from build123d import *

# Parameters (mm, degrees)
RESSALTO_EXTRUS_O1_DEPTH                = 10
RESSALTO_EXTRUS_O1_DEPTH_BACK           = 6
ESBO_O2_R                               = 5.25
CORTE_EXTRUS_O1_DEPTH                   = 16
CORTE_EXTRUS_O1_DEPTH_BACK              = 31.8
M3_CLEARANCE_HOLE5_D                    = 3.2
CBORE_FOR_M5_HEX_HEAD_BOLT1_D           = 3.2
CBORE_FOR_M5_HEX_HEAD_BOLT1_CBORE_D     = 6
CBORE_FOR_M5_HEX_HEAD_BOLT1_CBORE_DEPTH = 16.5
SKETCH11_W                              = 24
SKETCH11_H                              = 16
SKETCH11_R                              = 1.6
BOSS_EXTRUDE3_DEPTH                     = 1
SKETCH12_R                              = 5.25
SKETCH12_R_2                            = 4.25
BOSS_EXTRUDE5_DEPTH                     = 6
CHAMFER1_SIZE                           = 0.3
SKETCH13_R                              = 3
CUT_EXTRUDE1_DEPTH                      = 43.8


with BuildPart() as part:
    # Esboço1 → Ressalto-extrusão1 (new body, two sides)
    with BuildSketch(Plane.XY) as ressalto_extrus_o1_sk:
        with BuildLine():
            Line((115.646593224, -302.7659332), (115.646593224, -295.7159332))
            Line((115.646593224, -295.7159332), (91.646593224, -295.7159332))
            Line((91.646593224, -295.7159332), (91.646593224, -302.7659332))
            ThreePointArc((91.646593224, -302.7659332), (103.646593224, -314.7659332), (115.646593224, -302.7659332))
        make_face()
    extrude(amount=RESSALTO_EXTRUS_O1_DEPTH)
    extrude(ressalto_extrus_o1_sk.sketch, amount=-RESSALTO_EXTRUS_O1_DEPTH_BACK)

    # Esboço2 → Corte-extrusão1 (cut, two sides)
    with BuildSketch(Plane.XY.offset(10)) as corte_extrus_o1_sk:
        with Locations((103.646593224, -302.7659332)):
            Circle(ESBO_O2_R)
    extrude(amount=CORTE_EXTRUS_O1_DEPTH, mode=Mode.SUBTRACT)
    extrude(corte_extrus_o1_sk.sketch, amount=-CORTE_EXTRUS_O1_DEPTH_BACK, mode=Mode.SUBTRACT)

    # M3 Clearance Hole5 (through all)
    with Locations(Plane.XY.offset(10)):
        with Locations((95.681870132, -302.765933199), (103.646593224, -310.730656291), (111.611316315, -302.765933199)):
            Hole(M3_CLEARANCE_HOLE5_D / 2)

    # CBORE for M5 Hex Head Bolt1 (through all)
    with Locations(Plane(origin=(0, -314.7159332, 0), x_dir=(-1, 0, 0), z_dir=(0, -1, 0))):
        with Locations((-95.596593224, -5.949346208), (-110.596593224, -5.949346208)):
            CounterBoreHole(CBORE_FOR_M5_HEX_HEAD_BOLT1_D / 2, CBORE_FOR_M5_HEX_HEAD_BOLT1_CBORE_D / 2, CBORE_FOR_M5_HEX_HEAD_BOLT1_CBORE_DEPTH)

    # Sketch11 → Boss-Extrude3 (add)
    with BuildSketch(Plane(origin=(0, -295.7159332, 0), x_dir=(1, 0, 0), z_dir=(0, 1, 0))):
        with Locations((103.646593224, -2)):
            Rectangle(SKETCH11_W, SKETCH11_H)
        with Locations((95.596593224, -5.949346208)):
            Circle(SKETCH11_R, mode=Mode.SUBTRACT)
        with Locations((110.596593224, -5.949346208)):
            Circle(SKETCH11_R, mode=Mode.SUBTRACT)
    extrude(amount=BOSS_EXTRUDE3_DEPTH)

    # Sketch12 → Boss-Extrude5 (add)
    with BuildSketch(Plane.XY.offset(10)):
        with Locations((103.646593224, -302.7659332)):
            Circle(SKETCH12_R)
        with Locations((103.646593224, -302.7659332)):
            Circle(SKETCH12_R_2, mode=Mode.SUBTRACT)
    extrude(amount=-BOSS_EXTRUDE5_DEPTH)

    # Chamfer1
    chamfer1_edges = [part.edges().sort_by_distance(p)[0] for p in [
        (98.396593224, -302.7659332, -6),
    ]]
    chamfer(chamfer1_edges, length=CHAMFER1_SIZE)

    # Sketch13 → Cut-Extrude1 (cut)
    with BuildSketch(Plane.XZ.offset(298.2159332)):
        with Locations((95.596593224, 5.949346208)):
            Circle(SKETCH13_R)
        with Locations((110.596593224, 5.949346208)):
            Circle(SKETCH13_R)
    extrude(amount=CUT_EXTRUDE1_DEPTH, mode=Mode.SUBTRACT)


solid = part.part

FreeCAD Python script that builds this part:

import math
import FreeCAD as App
import Part
import Sketcher

V = App.Vector
Q = App.Units.Quantity


def edges_at(feature, points):
    """Names of the edges that pass closest to the given points."""
    edges = feature.Shape.Edges
    near = lambda p: min(range(len(edges)), key=lambda i: edges[i].distToShape(Part.Vertex(*p))[0])
    return sorted({f"Edge{near(p) + 1}" for p in points})

doc = App.newDocument("Part")
body = doc.addObject("PartDesign::Body", "Body")

# Sketch on XY plane
sketch1 = body.newObject("Sketcher::SketchObject", "Sketch")
sketch1.AttachmentSupport = (doc.getObject("XY_Plane"), [""])
sketch1.MapMode = "FlatFace"
sketch1.addGeometry([
    Part.LineSegment(V(115.646593, -302.765933, 0), V(115.646593, -295.715933, 0)),
    Part.LineSegment(V(115.646593, -295.715933, 0), V(91.646593, -295.715933, 0)),
    Part.LineSegment(V(91.646593, -295.715933, 0), V(91.646593, -302.765933, 0)),
    Part.ArcOfCircle(Part.Circle(V(103.646593, -302.765933, 0), V(0, 0, 1), 12), math.radians(180), math.radians(360)),
], False)
sketch1.addConstraint([
    Sketcher.Constraint("Coincident", 0, 2, 1, 1),
    Sketcher.Constraint("Coincident", 1, 2, 2, 1),
    Sketcher.Constraint("Tangent", 2, 2, 3, 1),
    Sketcher.Constraint("Tangent", 3, 2, 0, 1),
    Sketcher.Constraint("Vertical", 0),
    Sketcher.Constraint("Horizontal", 1),
    Sketcher.Constraint("Vertical", 2),
    Sketcher.Constraint("Radius", 3, Q("12 mm")),
    Sketcher.Constraint("DistanceY", 0, 1, 0, 2, Q("7.05 mm")),
    Sketcher.Constraint("DistanceX", -1, 1, 3, 3, Q("103.646593 mm")),
    Sketcher.Constraint("DistanceY", 3, 3, -1, 1, Q("302.765933 mm")),
])
pad1 = body.newObject("PartDesign::Pad", "Pad")
pad1.Profile = sketch1
pad1.Type = "TwoLengths"
pad1.Length = 10
pad1.Length2 = 6

# Sketch on XY plane
sketch2 = body.newObject("Sketcher::SketchObject", "Sketch001")
sketch2.AttachmentSupport = (doc.getObject("XY_Plane"), [""])
sketch2.MapMode = "FlatFace"
sketch2.AttachmentOffset = App.Placement(V(0, 0, 10), App.Rotation())
sketch2.addGeometry(Part.Circle(V(103.646593, -302.765933, 0), V(0, 0, 1), 5.25), False)
sketch2.addConstraint([
    Sketcher.Constraint("Diameter", 0, Q("10.5 mm")),
    Sketcher.Constraint("DistanceX", -1, 1, 0, 3, Q("103.646593 mm")),
    Sketcher.Constraint("DistanceY", 0, 3, -1, 1, Q("302.765933 mm")),
])
pocket1 = body.newObject("PartDesign::Pocket", "Pocket")
pocket1.Profile = sketch2
pocket1.Type = "ThroughAll"
pocket1.Midplane = True

# Sketch on XY plane
sketch3 = body.newObject("Sketcher::SketchObject", "Sketch002")
sketch3.AttachmentSupport = (doc.getObject("XY_Plane"), [""])
sketch3.MapMode = "FlatFace"
sketch3.AttachmentOffset = App.Placement(V(0, 0, 10), App.Rotation())
sketch3.addGeometry([
    Part.Circle(V(95.68187, -302.765933, 0), V(0, 0, 1), 1.6),
    Part.Circle(V(103.646593, -310.730656, 0), V(0, 0, 1), 1.6),
    Part.Circle(V(111.611316, -302.765933, 0), V(0, 0, 1), 1.6),
], False)
sketch3.addConstraint([
    Sketcher.Constraint("Equal", 0, 1),
    Sketcher.Constraint("Equal", 1, 2),
    Sketcher.Constraint("Horizontal", 0, 3, 2, 3),
    Sketcher.Constraint("Diameter", 0, Q("3.2 mm")),
    Sketcher.Constraint("DistanceX", -1, 1, 0, 3, Q("95.68187 mm")),
    Sketcher.Constraint("DistanceY", 0, 3, -1, 1, Q("302.765933 mm")),
    Sketcher.Constraint("DistanceX", -1, 1, 1, 3, Q("103.646593 mm")),
    Sketcher.Constraint("DistanceY", 1, 3, -1, 1, Q("310.730656 mm")),
    Sketcher.Constraint("DistanceX", -1, 1, 2, 3, Q("111.611316 mm")),
])
doc.recompute()
hole = body.newObject("PartDesign::Hole", "Hole")
hole.Profile = sketch3
hole.ThreadType = "None"
hole.Diameter = 3.2
hole.DepthType = "ThroughAll"

# Sketch on XZ plane
sketch4 = body.newObject("Sketcher::SketchObject", "Sketch003")
sketch4.AttachmentSupport = (doc.getObject("XZ_Plane"), [""])
sketch4.MapMode = "FlatFace"
sketch4.AttachmentOffset = App.Placement(V(0, 0, 314.715933), App.Rotation())
sketch4.addGeometry([
    Part.Circle(V(95.596593, 5.949346, 0), V(0, 0, 1), 1.6),
    Part.Circle(V(110.596593, 5.949346, 0), V(0, 0, 1), 1.6),
], False)
sketch4.addConstraint([
    Sketcher.Constraint("Equal", 0, 1),
    Sketcher.Constraint("Horizontal", 0, 3, 1, 3),
    Sketcher.Constraint("Diameter", 0, Q("3.2 mm")),
    Sketcher.Constraint("DistanceX", 0, 3, 1, 3, Q("15 mm")),
    Sketcher.Constraint("DistanceX", -1, 1, 0, 3, Q("95.596593 mm")),
    Sketcher.Constraint("DistanceY", -1, 1, 0, 3, Q("5.949346 mm")),
])
doc.recompute()
hole2 = body.newObject("PartDesign::Hole", "Hole001")
hole2.Profile = sketch4
hole2.ThreadType = "None"
hole2.Diameter = 3.2
hole2.DepthType = "ThroughAll"
hole2.HoleCutType = "Counterbore"
hole2.HoleCutDiameter = 6
hole2.HoleCutDepth = 16.5

# Sketch on XZ plane
sketch5 = body.newObject("Sketcher::SketchObject", "Sketch004")
sketch5.AttachmentSupport = (doc.getObject("XZ_Plane"), [""])
sketch5.MapMode = "FlatFace"
sketch5.AttachmentOffset = App.Placement(V(0, 0, 295.715933), App.Rotation())
sketch5.addGeometry([
    Part.LineSegment(V(91.646593, -6, 0), V(91.646593, 10, 0)),  # 0
    Part.LineSegment(V(91.646593, 10, 0), V(115.646593, 10, 0)),  # 1
    Part.LineSegment(V(115.646593, 10, 0), V(115.646593, -6, 0)),  # 2
    Part.LineSegment(V(115.646593, -6, 0), V(91.646593, -6, 0)),  # 3
    Part.Circle(V(95.596593, 5.949346, 0), V(0, 0, 1), 1.6),  # 4
    Part.Circle(V(110.596593, 5.949346, 0), V(0, 0, 1), 1.6),  # 5
], False)
sketch5.addConstraint([
    Sketcher.Constraint("Coincident", 0, 2, 1, 1),
    Sketcher.Constraint("Coincident", 1, 2, 2, 1),
    Sketcher.Constraint("Coincident", 2, 2, 3, 1),
    Sketcher.Constraint("Coincident", 3, 2, 0, 1),
    Sketcher.Constraint("Vertical", 0),
    Sketcher.Constraint("Horizontal", 1),
    Sketcher.Constraint("Vertical", 2),
    Sketcher.Constraint("Horizontal", 3),
    Sketcher.Constraint("Equal", 4, 5),
    Sketcher.Constraint("Horizontal", 4, 3, 5, 3),
    Sketcher.Constraint("Diameter", 4, Q("3.2 mm")),
    Sketcher.Constraint("DistanceX", 1, 1, 1, 2, Q("24 mm")),
    Sketcher.Constraint("DistanceY", 0, 1, 0, 2, Q("16 mm")),
    Sketcher.Constraint("DistanceY", -1, 1, 0, 2, Q("10 mm")),
    Sketcher.Constraint("DistanceX", 4, 3, 5, 3, Q("15 mm")),
    Sketcher.Constraint("DistanceX", 0, 2, 4, 3, Q("3.95 mm")),
    Sketcher.Constraint("DistanceX", -1, 1, 4, 3, Q("95.596593 mm")),
    Sketcher.Constraint("DistanceY", -1, 1, 4, 3, Q("5.949346 mm")),
])
pad2 = body.newObject("PartDesign::Pad", "Pad001")
pad2.Profile = sketch5
pad2.Length = 1
pad2.Reversed = True

# Sketch on XY plane
sketch6 = body.newObject("Sketcher::SketchObject", "Sketch005")
sketch6.AttachmentSupport = (doc.getObject("XY_Plane"), [""])
sketch6.MapMode = "FlatFace"
sketch6.AttachmentOffset = App.Placement(V(0, 0, 10), App.Rotation())
sketch6.addGeometry([
    Part.Circle(V(103.646593, -302.765933, 0), V(0, 0, 1), 5.25),
    Part.Circle(V(103.646593, -302.765933, 0), V(0, 0, 1), 4.25),
], False)
sketch6.addConstraint([
    Sketcher.Constraint("Coincident", 1, 3, 0, 3),
    Sketcher.Constraint("Diameter", 0, Q("10.5 mm")),
    Sketcher.Constraint("Diameter", 1, Q("8.5 mm")),
    Sketcher.Constraint("DistanceX", -1, 1, 0, 3, Q("103.646593 mm")),
    Sketcher.Constraint("DistanceY", 0, 3, -1, 1, Q("302.765933 mm")),
])
pad3 = body.newObject("PartDesign::Pad", "Pad002")
pad3.Profile = sketch6
pad3.Length = 6
pad3.Reversed = True
doc.recompute()

chamfer = body.newObject("PartDesign::Chamfer", "Chamfer")
chamfer.Base = (pad3, edges_at(pad3, [(98.397, -302.766, -6)]))
chamfer.Size = 0.3

# Sketch on XZ plane
sketch7 = body.newObject("Sketcher::SketchObject", "Sketch006")
sketch7.AttachmentSupport = (doc.getObject("XZ_Plane"), [""])
sketch7.MapMode = "FlatFace"
sketch7.AttachmentOffset = App.Placement(V(0, 0, 298.215933), App.Rotation())
sketch7.addGeometry([
    Part.Circle(V(95.596593, 5.949346, 0), V(0, 0, 1), 3),
    Part.Circle(V(110.596593, 5.949346, 0), V(0, 0, 1), 3),
], False)
sketch7.addConstraint([
    Sketcher.Constraint("Equal", 0, 1),
    Sketcher.Constraint("Horizontal", 0, 3, 1, 3),
    Sketcher.Constraint("Diameter", 0, Q("6 mm")),
    Sketcher.Constraint("DistanceX", 0, 3, 1, 3, Q("15 mm")),
    Sketcher.Constraint("DistanceX", -1, 1, 0, 3, Q("95.596593 mm")),
    Sketcher.Constraint("DistanceY", -1, 1, 0, 3, Q("5.949346 mm")),
])
pocket2 = body.newObject("PartDesign::Pocket", "Pocket001")
pocket2.Profile = sketch7
pocket2.Length = 43.8
pocket2.Reversed = True

doc.recompute()
